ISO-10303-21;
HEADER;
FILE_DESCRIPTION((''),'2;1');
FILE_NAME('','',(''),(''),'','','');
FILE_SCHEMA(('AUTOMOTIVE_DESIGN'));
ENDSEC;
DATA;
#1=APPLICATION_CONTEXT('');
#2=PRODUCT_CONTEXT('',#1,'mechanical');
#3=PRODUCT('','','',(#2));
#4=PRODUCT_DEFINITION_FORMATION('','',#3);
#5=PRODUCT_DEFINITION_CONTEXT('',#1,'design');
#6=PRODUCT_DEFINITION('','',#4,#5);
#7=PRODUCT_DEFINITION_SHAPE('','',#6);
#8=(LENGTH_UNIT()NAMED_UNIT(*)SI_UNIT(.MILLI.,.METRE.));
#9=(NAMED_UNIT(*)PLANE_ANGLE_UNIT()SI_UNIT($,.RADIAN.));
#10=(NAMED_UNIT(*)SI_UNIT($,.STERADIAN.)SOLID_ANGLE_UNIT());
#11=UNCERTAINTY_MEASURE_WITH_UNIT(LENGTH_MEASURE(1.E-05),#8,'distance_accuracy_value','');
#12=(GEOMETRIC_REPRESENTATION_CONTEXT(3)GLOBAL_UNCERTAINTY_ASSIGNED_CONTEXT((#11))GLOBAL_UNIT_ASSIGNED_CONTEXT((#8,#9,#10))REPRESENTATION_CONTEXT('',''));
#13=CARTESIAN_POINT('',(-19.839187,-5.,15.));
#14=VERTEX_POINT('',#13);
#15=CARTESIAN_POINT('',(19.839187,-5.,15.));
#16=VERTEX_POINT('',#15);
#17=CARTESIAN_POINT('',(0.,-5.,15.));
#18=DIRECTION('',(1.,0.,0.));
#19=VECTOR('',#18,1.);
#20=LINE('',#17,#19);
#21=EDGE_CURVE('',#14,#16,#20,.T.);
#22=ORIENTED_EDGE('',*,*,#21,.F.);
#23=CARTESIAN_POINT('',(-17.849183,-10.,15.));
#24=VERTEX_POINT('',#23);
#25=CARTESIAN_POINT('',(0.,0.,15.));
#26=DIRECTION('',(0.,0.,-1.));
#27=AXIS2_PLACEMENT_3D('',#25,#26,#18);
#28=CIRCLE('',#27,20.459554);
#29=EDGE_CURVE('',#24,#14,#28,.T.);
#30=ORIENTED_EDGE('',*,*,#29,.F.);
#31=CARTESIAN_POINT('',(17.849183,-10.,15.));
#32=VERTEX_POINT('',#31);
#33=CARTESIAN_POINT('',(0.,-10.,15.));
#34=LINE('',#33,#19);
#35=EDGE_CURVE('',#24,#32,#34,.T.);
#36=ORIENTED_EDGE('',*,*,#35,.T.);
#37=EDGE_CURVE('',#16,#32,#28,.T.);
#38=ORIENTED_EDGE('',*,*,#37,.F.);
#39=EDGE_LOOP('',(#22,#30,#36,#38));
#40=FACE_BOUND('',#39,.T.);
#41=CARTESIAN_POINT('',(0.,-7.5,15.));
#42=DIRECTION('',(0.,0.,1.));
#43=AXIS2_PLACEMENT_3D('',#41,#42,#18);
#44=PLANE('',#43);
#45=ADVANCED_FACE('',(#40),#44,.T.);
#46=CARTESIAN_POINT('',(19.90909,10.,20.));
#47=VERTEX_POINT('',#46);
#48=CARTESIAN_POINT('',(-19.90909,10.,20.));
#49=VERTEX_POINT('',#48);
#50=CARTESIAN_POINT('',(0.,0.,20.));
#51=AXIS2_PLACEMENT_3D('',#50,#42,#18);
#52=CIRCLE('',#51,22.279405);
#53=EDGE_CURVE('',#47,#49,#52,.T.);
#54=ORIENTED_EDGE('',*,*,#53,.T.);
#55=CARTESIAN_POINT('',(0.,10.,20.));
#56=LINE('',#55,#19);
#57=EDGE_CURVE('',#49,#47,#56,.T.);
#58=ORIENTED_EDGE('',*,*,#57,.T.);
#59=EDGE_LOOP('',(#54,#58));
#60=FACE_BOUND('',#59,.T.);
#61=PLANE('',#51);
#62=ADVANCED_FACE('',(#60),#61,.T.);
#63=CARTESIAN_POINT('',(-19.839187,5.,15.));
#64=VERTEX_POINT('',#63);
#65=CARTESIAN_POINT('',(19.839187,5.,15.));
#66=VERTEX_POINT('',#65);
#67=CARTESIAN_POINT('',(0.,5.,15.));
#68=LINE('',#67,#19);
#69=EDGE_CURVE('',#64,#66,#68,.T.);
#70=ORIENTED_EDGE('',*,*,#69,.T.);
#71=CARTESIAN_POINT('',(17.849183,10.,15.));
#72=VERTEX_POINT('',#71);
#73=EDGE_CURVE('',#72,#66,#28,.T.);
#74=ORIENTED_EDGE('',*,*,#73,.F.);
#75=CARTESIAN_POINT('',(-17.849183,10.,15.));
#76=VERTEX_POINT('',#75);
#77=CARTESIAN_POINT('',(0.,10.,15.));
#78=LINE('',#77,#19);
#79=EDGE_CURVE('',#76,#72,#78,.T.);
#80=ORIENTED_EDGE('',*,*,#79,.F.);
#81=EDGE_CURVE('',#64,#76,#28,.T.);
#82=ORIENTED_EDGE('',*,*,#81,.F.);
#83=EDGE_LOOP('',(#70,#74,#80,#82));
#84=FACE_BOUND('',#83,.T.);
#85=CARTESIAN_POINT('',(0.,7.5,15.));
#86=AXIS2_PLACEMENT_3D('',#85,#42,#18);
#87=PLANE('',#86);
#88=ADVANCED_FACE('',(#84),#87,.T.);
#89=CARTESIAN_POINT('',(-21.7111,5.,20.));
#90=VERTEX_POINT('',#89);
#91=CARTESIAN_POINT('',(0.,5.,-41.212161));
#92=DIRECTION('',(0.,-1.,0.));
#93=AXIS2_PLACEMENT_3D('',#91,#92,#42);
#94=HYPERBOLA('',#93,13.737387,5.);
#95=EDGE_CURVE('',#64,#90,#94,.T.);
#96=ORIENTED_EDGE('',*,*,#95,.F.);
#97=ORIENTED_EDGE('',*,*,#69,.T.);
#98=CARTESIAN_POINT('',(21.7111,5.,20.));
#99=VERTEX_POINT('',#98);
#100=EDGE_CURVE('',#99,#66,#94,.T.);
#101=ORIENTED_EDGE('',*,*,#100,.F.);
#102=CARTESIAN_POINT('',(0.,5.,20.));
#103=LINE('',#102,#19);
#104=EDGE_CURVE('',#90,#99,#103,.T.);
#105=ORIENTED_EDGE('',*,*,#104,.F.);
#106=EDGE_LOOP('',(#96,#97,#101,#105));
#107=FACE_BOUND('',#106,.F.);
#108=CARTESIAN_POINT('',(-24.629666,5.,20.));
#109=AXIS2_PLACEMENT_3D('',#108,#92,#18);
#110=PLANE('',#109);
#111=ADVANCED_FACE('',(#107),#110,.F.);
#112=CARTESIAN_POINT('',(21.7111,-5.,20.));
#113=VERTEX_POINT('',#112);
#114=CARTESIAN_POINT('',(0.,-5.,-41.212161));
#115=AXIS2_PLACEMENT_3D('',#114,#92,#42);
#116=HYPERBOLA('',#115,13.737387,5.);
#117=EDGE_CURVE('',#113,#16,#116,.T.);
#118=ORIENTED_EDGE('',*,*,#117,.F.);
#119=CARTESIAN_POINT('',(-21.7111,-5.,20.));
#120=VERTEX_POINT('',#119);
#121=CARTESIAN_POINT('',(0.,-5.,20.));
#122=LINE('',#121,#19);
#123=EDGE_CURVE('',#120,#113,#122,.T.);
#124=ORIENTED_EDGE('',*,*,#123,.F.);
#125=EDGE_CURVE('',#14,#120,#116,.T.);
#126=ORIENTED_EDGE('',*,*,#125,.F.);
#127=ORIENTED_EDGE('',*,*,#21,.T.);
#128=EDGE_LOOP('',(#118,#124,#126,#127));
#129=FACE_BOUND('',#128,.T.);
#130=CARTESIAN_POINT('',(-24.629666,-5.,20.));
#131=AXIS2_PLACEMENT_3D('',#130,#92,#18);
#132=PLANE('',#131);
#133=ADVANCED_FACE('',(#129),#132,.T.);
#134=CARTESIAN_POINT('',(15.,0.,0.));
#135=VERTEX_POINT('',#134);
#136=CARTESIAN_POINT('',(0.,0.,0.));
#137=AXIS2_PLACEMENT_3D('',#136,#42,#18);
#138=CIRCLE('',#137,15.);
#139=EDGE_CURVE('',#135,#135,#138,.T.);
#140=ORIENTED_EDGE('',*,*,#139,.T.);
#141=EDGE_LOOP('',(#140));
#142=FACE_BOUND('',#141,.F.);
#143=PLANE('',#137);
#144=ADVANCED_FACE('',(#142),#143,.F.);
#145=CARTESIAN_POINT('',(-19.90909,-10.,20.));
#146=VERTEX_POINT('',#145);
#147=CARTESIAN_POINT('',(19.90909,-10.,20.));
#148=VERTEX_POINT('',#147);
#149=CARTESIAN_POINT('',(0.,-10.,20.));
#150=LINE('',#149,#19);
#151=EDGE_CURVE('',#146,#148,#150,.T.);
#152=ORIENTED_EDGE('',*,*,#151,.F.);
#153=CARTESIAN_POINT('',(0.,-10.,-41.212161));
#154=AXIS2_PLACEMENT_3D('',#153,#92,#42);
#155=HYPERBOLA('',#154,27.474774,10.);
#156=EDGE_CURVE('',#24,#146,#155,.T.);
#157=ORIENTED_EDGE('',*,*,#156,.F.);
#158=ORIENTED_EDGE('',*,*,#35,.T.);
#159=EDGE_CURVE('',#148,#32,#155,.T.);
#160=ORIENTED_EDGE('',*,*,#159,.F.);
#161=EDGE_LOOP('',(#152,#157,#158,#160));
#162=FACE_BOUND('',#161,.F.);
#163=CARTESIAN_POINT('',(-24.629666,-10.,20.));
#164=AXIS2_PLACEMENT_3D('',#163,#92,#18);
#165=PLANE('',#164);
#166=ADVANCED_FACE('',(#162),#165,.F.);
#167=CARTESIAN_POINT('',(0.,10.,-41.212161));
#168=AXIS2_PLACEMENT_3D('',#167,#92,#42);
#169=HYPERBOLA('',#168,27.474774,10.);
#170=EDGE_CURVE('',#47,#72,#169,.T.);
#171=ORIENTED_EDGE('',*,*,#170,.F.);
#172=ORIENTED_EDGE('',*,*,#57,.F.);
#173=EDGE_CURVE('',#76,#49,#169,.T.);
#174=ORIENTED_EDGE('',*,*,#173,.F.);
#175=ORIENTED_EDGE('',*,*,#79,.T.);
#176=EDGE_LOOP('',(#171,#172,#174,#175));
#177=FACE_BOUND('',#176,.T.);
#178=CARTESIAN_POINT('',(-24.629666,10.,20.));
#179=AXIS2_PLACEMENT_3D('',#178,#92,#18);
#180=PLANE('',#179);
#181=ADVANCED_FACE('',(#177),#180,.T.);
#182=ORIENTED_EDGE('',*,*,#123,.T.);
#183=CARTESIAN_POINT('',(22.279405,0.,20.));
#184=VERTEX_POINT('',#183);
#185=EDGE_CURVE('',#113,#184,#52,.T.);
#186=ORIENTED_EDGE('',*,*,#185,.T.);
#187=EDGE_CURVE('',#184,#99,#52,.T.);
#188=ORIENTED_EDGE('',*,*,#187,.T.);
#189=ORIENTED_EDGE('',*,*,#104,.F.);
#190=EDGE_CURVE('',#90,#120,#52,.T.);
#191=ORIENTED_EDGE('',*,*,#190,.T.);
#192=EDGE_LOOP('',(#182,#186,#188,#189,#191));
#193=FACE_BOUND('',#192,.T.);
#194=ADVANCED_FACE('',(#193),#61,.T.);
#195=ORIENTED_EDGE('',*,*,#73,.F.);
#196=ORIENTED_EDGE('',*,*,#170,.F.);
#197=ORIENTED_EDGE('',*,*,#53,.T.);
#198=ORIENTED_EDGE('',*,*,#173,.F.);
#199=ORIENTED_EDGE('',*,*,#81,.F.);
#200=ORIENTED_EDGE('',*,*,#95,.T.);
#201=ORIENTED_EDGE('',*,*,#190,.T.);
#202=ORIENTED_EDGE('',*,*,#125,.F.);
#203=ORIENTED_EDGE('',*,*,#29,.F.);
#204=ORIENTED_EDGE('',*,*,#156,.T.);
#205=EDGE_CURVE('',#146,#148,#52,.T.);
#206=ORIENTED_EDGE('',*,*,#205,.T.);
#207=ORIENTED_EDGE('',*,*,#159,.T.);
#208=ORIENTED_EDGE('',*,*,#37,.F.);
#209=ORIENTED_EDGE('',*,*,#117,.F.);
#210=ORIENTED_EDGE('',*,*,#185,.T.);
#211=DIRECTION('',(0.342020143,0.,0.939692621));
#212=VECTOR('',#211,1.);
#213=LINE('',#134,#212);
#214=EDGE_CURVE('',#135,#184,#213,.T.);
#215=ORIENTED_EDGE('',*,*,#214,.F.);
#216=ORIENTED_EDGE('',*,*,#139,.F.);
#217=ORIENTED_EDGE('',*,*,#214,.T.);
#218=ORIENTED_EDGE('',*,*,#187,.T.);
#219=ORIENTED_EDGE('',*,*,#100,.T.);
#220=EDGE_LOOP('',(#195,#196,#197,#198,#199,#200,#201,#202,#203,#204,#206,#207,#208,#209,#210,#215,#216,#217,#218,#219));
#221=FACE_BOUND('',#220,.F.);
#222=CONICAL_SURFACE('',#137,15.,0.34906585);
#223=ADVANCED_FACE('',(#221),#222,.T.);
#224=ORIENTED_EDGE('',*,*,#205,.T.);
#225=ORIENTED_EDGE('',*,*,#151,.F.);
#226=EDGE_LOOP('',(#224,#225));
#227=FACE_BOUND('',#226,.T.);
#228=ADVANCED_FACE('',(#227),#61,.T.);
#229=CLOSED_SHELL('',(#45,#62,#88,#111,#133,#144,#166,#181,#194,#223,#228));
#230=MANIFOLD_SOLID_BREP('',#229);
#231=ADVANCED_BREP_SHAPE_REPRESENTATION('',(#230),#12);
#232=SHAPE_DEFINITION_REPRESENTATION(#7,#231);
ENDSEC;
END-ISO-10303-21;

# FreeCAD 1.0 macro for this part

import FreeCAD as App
import Part
import Sketcher
Q = App.Units.Quantity


def faces_at(feature, points):
    """Names of the faces that lie closest to the given points."""
    faces = feature.Shape.Faces
    near = lambda p: min(range(len(faces)), key=lambda i: faces[i].distToShape(Part.Vertex(*p))[0])
    return sorted({f"Face{near(p) + 1}" for p in points})

doc = App.newDocument("Part")
params = doc.addObject("Spreadsheet::Sheet", "Params")
for row, (alias, value) in enumerate([
    ("sketch1_diameter", "30 mm"),
    ("pad1_length", "20 mm"),
    ("draft_angle", "20 deg"),
    ("sketch2_height", "5 mm"),
    ("pocket1_length", "5 mm"),
], start=1):
    params.set(f"A{row}", alias)
    params.set(f"B{row}", "=" + value)
    params.setAlias(f"B{row}", alias)

body = doc.addObject("PartDesign::Body", "Body")

sketch1 = body.newObject("Sketcher::SketchObject", "Sketch")
sketch1.AttachmentSupport = (doc.getObject("XY_Plane"), [""])
sketch1.MapMode = "FlatFace"
sketch1.addGeometry(Part.Circle(App.Vector(0, 0, 0), App.Vector(0, 0, 1), 15), False)
sketch1.addConstraint([
    Sketcher.Constraint("Coincident", 0, 3, -1, 1),
    Sketcher.Constraint("Diameter", 0, Q("30 mm")),
])
sketch1.setExpression("Constraints[1]", "Params.sketch1_diameter")
pad1 = body.newObject("PartDesign::Pad", "Pad")
pad1.Profile = sketch1
pad1.setExpression("Length", "Params.pad1_length")
doc.recompute()

draft = body.newObject("PartDesign::Draft", "Draft")
draft.Base = (pad1, faces_at(pad1, [(-15, 0, 10)]))
draft.NeutralPlane = (doc.getObject("XY_Plane"), [""])
draft.setExpression("Angle", "Params.draft_angle")
draft.Reversed = True

sketch2 = body.newObject("Sketcher::SketchObject", "Sketch001")
sketch2.AttachmentSupport = (doc.getObject("XY_Plane"), [""])
sketch2.MapMode = "FlatFace"
sketch2.AttachmentOffset = App.Placement(App.Vector(0, 0, 20), App.Rotation())
sketch2.addGeometry([
    Part.LineSegment(App.Vector(-25, -5, 0), App.Vector(-25, -10, 0)),
    Part.LineSegment(App.Vector(-25, -10, 0), App.Vector(25, -10, 0)),
    Part.LineSegment(App.Vector(25, -10, 0), App.Vector(25, -5, 0)),
    Part.LineSegment(App.Vector(25, -5, 0), App.Vector(-25, -5, 0)),
    Part.LineSegment(App.Vector(-25, 10, 0), App.Vector(-25, 5, 0)),
    Part.LineSegment(App.Vector(-25, 5, 0), App.Vector(25, 5, 0)),
    Part.LineSegment(App.Vector(25, 5, 0), App.Vector(25, 10, 0)),
    Part.LineSegment(App.Vector(25, 10, 0), App.Vector(-25, 10, 0)),
], False)
sketch2.addConstraint([
    Sketcher.Constraint("Coincident", 0, 2, 1, 1),
    Sketcher.Constraint("Coincident", 1, 2, 2, 1),
    Sketcher.Constraint("Coincident", 2, 2, 3, 1),
    Sketcher.Constraint("Coincident", 3, 2, 0, 1),
    Sketcher.Constraint("Coincident", 4, 2, 5, 1),
    Sketcher.Constraint("Coincident", 5, 2, 6, 1),
    Sketcher.Constraint("Coincident", 6, 2, 7, 1),
    Sketcher.Constraint("Coincident", 7, 2, 4, 1),
    Sketcher.Constraint("Vertical", 0),
    Sketcher.Constraint("Horizontal", 1),
    Sketcher.Constraint("Vertical", 2),
    Sketcher.Constraint("Horizontal", 3),
    Sketcher.Constraint("Vertical", 4),
    Sketcher.Constraint("Horizontal", 5),
    Sketcher.Constraint("Vertical", 6),
    Sketcher.Constraint("Horizontal", 7),
    Sketcher.Constraint("Symmetric", 2, 2, 4, 2, -1, 1),
    Sketcher.Constraint("Symmetric", 0, 2, 6, 2, -1, 1),
    Sketcher.Constraint("Vertical", 3, 2, 4, 2),
    Sketcher.Constraint("DistanceY", 0, 2, 0, 1, Q("5 mm")),
    Sketcher.Constraint("DistanceY", 0, 2, -1, 1, Q("10 mm")),
    Sketcher.Constraint("DistanceX", 1, 1, 1, 2, Q("49.259331 mm")),
])
sketch2.setExpression("Constraints[19]", "Params.sketch2_height")
pocket1 = body.newObject("PartDesign::Pocket", "Pocket")
pocket1.Profile = sketch2
pocket1.setExpression("Length", "Params.pocket1_length")

doc.recompute()
